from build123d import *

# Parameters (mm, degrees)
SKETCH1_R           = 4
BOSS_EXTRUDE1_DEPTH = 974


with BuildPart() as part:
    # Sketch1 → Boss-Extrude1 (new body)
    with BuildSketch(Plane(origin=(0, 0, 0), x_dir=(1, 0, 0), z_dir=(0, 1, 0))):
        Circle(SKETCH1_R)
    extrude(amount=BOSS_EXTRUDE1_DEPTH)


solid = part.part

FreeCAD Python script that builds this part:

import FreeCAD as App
import Part
import Sketcher
from FreeCAD import Vector
Q = App.Units.Quantity

doc = App.newDocument("Part")
body = doc.addObject("PartDesign::Body", "Body")

# Sketch on XZ plane
sketch1 = doc.addObject("Sketcher::SketchObject", "Sketch")
body.addObject(sketch1)
sketch1.AttachmentSupport = (doc.XZ_Plane, [""])
sketch1.MapMode = "FlatFace"
sketch1.addGeometry(Part.Circle(Vector(0, 0, 0), Vector(0, 0, 1), 4), False)
sketch1.addConstraint(Sketcher.Constraint("Coincident", 0, 3, -1, 1))
sketch1.addConstraint(Sketcher.Constraint("Diameter", 0, Q("8 mm")))
pad1 = doc.addObject("PartDesign::Pad", "Pad")
body.addObject(pad1)
pad1.Profile = sketch1
pad1.Length = 974
pad1.Reversed = True

doc.recompute()
